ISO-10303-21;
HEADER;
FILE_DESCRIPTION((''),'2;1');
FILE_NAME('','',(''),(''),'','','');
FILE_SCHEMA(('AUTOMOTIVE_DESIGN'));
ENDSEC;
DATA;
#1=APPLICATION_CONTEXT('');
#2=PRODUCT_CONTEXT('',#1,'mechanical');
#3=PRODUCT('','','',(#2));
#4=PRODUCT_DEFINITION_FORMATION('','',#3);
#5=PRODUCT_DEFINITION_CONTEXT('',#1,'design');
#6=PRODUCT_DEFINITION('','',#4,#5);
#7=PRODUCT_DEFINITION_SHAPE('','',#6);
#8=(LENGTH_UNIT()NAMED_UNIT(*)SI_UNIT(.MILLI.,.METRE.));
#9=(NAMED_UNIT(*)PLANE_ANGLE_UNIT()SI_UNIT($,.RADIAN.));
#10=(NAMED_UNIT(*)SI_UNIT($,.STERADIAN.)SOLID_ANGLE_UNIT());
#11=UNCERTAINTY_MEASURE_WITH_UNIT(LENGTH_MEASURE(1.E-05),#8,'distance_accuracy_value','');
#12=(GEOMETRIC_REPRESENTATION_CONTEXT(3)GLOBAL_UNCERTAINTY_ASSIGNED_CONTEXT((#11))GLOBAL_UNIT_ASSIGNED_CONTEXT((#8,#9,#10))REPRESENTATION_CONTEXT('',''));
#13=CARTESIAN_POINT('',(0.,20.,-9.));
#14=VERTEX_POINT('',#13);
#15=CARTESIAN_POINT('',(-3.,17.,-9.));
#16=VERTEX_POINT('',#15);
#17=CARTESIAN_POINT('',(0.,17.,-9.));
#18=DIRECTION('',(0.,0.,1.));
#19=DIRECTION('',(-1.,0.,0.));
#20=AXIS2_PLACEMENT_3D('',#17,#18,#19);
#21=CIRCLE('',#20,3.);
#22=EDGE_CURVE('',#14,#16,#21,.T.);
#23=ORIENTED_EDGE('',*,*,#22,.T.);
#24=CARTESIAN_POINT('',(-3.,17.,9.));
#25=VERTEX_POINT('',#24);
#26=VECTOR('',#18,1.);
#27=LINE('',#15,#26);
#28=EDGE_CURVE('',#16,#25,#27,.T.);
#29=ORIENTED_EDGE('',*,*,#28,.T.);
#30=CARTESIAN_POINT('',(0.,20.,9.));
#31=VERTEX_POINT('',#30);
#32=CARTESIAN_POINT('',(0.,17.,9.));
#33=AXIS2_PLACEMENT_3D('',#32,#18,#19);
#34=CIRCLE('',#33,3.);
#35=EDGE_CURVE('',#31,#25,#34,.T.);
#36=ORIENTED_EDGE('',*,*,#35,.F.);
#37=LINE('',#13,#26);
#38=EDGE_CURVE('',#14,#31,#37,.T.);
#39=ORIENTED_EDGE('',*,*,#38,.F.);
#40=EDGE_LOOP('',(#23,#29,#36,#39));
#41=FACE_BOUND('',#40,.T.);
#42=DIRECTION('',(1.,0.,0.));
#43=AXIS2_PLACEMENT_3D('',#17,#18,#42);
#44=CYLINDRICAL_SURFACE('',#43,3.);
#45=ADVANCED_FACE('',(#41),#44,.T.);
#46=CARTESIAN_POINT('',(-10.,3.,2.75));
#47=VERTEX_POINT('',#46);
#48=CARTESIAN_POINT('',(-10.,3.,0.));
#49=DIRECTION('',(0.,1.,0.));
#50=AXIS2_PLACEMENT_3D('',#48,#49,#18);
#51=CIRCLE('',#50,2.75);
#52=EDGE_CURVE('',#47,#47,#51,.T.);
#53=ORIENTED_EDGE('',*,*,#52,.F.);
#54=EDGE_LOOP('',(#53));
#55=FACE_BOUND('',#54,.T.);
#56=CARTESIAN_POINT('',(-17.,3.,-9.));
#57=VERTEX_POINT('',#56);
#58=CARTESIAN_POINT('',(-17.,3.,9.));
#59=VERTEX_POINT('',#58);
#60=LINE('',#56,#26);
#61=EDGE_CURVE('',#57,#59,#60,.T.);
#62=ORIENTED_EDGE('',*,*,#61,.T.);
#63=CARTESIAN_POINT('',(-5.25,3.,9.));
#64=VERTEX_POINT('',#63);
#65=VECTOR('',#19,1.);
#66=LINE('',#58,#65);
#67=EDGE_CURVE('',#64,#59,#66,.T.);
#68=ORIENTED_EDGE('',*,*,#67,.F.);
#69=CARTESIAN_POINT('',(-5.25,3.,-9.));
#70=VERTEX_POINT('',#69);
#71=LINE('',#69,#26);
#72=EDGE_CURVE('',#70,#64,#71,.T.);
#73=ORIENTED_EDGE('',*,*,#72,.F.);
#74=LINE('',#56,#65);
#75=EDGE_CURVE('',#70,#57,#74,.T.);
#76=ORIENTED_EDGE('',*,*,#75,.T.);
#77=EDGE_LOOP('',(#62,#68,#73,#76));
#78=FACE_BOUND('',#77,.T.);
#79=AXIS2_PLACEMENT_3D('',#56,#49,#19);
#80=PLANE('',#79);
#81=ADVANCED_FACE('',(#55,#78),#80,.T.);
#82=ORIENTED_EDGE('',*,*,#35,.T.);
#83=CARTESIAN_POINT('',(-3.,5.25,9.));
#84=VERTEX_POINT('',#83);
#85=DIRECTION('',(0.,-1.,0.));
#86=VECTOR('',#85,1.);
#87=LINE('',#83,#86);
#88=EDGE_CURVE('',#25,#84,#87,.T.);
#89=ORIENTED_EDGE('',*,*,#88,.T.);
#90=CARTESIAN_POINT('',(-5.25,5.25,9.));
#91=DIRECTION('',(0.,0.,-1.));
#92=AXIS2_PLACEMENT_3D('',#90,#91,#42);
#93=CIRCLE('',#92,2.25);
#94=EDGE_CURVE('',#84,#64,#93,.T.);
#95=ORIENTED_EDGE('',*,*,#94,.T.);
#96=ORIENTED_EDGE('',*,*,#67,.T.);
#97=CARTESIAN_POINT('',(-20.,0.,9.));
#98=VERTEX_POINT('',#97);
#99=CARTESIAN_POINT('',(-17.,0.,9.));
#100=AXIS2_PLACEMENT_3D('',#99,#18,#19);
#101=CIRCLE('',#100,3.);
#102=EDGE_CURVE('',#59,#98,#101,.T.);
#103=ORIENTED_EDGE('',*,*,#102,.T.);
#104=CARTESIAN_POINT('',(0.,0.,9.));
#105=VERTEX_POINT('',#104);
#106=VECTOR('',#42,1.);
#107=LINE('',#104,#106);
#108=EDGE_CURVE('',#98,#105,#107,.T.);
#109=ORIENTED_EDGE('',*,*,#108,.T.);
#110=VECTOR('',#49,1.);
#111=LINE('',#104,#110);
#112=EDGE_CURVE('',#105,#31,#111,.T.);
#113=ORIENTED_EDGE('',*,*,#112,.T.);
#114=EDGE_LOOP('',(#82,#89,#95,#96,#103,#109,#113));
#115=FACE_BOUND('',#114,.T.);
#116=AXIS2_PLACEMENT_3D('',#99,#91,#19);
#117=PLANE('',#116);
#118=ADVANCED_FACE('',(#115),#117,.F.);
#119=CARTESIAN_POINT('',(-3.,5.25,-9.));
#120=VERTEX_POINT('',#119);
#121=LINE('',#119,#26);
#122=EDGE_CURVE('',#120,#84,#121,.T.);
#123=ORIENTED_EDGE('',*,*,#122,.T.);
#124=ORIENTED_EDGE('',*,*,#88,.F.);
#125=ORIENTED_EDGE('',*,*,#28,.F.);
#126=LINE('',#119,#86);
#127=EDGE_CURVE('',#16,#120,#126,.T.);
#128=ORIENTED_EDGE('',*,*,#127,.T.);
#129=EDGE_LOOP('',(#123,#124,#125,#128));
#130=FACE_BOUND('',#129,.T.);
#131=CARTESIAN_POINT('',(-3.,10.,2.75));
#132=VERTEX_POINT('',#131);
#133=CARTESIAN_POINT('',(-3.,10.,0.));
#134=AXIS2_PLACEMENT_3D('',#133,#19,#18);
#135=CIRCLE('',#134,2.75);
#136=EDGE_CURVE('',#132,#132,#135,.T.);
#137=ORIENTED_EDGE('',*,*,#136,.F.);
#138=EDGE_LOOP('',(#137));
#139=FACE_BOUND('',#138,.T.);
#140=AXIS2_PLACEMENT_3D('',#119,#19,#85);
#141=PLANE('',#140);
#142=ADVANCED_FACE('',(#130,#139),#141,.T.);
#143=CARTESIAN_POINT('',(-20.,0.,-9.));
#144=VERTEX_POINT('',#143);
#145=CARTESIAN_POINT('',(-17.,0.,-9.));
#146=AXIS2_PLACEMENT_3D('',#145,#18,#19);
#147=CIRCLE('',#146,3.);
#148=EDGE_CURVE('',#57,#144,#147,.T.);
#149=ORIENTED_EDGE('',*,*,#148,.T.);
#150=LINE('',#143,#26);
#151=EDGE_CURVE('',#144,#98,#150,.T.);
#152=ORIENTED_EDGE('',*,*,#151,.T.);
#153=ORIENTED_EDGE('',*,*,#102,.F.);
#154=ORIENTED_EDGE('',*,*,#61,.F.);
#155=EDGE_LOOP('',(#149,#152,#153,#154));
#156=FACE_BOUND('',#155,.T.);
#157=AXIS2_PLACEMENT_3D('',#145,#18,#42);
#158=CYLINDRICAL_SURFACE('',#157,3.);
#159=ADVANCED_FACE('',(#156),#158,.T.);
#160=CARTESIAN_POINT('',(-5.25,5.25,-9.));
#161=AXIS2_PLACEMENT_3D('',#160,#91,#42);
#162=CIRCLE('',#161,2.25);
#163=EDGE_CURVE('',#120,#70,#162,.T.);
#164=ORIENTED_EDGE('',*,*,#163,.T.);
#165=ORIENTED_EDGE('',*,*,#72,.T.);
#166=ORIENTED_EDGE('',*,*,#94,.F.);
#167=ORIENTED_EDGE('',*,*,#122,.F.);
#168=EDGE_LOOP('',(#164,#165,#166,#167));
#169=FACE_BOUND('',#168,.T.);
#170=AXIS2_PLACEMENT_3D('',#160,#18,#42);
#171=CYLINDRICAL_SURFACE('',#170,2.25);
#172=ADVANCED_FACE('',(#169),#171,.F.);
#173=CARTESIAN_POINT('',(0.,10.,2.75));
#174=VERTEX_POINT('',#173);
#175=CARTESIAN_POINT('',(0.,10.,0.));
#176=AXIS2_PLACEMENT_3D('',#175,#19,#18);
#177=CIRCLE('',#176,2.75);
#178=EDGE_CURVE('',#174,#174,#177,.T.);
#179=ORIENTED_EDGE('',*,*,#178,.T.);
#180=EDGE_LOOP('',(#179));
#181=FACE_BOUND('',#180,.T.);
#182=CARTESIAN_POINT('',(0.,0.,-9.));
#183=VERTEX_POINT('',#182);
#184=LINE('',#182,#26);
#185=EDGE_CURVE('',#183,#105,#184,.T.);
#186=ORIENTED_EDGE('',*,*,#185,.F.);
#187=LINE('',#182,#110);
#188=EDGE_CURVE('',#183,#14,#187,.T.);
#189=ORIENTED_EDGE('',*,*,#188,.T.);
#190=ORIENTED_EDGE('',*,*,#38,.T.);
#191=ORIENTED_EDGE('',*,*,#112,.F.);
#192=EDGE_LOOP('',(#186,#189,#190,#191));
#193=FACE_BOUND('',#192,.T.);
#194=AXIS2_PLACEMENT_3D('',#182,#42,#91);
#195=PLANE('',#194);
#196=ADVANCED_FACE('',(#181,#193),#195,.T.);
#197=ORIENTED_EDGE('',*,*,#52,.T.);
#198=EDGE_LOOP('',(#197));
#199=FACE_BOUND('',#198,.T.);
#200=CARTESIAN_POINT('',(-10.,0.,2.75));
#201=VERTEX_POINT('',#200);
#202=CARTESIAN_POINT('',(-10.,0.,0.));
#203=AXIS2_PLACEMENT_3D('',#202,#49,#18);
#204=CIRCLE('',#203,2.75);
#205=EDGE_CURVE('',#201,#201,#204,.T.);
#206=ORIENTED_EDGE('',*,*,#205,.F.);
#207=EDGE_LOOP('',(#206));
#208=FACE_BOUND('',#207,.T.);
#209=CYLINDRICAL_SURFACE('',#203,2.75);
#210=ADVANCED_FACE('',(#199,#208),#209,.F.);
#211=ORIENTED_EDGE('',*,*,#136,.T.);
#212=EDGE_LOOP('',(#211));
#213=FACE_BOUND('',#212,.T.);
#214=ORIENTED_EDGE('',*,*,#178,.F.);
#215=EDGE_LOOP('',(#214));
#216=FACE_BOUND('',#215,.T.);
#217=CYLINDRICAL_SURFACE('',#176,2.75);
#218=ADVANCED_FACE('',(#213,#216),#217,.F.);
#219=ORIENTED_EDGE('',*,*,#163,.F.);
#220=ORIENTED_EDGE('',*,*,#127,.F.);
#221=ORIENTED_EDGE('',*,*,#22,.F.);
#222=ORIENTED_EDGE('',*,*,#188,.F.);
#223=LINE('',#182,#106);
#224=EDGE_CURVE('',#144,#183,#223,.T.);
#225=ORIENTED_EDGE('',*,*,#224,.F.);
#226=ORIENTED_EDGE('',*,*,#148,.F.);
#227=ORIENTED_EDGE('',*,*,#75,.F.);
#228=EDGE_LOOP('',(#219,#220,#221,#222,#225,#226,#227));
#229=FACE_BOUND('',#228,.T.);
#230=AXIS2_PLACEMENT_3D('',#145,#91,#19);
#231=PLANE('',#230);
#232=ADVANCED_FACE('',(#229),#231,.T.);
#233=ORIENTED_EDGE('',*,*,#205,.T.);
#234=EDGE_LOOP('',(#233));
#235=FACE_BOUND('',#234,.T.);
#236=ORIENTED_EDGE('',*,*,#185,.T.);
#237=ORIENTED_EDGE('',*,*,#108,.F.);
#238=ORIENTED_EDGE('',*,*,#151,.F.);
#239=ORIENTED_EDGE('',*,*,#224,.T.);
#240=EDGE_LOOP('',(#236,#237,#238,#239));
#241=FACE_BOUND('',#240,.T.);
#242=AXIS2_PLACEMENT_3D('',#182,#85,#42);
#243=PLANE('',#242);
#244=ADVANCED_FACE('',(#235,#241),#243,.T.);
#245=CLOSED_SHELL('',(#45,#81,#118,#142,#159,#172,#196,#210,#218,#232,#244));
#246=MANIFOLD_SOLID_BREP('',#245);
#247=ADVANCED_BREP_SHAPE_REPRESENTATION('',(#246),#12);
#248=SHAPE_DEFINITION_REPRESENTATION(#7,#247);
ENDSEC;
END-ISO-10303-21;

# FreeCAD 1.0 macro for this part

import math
import FreeCAD as App
import Part
import Sketcher

V = App.Vector

doc = App.newDocument("Part")
body = doc.addObject("PartDesign::Body", "Body")

# Sketch on XY plane
sketch1 = body.newObject("Sketcher::SketchObject", "Sketch")
sketch1.AttachmentSupport = (doc.getObject("XY_Plane"), [""])
sketch1.MapMode = "FlatFace"
sketch1.addGeometry(Part.LineSegment(V(0, 0, 0), V(0, 20, 0)), False)
sketch1.addGeometry(Part.ArcOfCircle(Part.Circle(V(0, 17, 0), V(0, 0, 1), 3), math.radians(90), math.radians(180)), False)
sketch1.addGeometry(Part.LineSegment(V(-3, 17, 0), V(-3, 5.2, 0)), False)
sketch1.addGeometry(Part.ArcOfCircle(Part.Circle(V(-5.2, 5.2, 0), V(0, 0, 1), 2.2), math.radians(-90), math.radians(0)), False)
sketch1.addGeometry(Part.LineSegment(V(-5.2, 3, 0), V(-17, 3, 0)), False)
sketch1.addGeometry(Part.ArcOfCircle(Part.Circle(V(-17, 0, 0), V(0, 0, 1), 3), math.radians(90), math.radians(180)), False)
sketch1.addGeometry(Part.LineSegment(V(-20, 0, 0), V(0, 0, 0)), False)
sketch1.addConstraint(Sketcher.Constraint("Coincident", 0, 2, 1, 1))
sketch1.addConstraint(Sketcher.Constraint("Tangent", 1, 2, 2, 1))
sketch1.addConstraint(Sketcher.Constraint("Tangent", 2, 2, 3, 2))
sketch1.addConstraint(Sketcher.Constraint("Tangent", 3, 1, 4, 1))
sketch1.addConstraint(Sketcher.Constraint("Tangent", 4, 2, 5, 1))
sketch1.addConstraint(Sketcher.Constraint("Coincident", 5, 2, 6, 1))
sketch1.addConstraint(Sketcher.Constraint("Coincident", 6, 2, 0, 1))
sketch1.addConstraint(Sketcher.Constraint("Vertical", 0))
sketch1.addConstraint(Sketcher.Constraint("Vertical", 2))
sketch1.addConstraint(Sketcher.Constraint("Horizontal", 4))
sketch1.addConstraint(Sketcher.Constraint("Horizontal", 6))
sketch1.addConstraint(Sketcher.Constraint("Coincident", 6, 2, -1, 1))
sketch1.addConstraint(Sketcher.Constraint("Equal", 1, 5))
sketch1.addConstraint(Sketcher.Constraint("PointOnObject", 1, 3, -2))
sketch1.addConstraint(Sketcher.Constraint("PointOnObject", 5, 3, -1))
sketch1.addConstraint(Sketcher.Constraint("Equal", 6, 0))
sketch1.addConstraint(Sketcher.Constraint("Radius", 1, 3.0))
sketch1.addConstraint(Sketcher.Constraint("DistanceX", 6, 1, 6, 2, 20.0))
sketch1.addConstraint(Sketcher.Constraint("Radius", 3, 2.25))
pad1 = body.newObject("PartDesign::Pad", "Pad")
pad1.Profile = sketch1
pad1.Length = 18
pad1.Midplane = True

# Sketch on XZ plane
sketch2 = body.newObject("Sketcher::SketchObject", "Sketch001")
sketch2.AttachmentSupport = (doc.getObject("XZ_Plane"), [""])
sketch2.MapMode = "FlatFace"
sketch2.AttachmentOffset = App.Placement(V(0, 0, -3), App.Rotation())
sketch2.addGeometry(Part.Circle(V(-10, 0, 0), V(0, 0, 1), 2.8), False)
sketch2.addConstraint(Sketcher.Constraint("PointOnObject", 0, 3, -1))
sketch2.addConstraint(Sketcher.Constraint("Diameter", 0, 5.5))
sketch2.addConstraint(Sketcher.Constraint("DistanceX", 0, 3, -1, 1, 10.0))
pocket1 = body.newObject("PartDesign::Pocket", "Pocket")
pocket1.Profile = sketch2
pocket1.Type = "ThroughAll"
pocket1.Reversed = True

# Sketch on YZ plane
sketch3 = body.newObject("Sketcher::SketchObject", "Sketch002")
sketch3.AttachmentSupport = (doc.getObject("YZ_Plane"), [""])
sketch3.MapMode = "FlatFace"
sketch3.AttachmentOffset = App.Placement(V(0, 0, -3), App.Rotation())
sketch3.addGeometry(Part.Circle(V(10, 0, 0), V(0, 0, 1), 2.8), False)
sketch3.addConstraint(Sketcher.Constraint("PointOnObject", 0, 3, -1))
sketch3.addConstraint(Sketcher.Constraint("Diameter", 0, 5.5))
sketch3.addConstraint(Sketcher.Constraint("DistanceX", -1, 1, 0, 3, 10.0))
pocket2 = body.newObject("PartDesign::Pocket", "Pocket001")
pocket2.Profile = sketch3
pocket2.Type = "ThroughAll"
pocket2.Reversed = True

doc.recompute()
